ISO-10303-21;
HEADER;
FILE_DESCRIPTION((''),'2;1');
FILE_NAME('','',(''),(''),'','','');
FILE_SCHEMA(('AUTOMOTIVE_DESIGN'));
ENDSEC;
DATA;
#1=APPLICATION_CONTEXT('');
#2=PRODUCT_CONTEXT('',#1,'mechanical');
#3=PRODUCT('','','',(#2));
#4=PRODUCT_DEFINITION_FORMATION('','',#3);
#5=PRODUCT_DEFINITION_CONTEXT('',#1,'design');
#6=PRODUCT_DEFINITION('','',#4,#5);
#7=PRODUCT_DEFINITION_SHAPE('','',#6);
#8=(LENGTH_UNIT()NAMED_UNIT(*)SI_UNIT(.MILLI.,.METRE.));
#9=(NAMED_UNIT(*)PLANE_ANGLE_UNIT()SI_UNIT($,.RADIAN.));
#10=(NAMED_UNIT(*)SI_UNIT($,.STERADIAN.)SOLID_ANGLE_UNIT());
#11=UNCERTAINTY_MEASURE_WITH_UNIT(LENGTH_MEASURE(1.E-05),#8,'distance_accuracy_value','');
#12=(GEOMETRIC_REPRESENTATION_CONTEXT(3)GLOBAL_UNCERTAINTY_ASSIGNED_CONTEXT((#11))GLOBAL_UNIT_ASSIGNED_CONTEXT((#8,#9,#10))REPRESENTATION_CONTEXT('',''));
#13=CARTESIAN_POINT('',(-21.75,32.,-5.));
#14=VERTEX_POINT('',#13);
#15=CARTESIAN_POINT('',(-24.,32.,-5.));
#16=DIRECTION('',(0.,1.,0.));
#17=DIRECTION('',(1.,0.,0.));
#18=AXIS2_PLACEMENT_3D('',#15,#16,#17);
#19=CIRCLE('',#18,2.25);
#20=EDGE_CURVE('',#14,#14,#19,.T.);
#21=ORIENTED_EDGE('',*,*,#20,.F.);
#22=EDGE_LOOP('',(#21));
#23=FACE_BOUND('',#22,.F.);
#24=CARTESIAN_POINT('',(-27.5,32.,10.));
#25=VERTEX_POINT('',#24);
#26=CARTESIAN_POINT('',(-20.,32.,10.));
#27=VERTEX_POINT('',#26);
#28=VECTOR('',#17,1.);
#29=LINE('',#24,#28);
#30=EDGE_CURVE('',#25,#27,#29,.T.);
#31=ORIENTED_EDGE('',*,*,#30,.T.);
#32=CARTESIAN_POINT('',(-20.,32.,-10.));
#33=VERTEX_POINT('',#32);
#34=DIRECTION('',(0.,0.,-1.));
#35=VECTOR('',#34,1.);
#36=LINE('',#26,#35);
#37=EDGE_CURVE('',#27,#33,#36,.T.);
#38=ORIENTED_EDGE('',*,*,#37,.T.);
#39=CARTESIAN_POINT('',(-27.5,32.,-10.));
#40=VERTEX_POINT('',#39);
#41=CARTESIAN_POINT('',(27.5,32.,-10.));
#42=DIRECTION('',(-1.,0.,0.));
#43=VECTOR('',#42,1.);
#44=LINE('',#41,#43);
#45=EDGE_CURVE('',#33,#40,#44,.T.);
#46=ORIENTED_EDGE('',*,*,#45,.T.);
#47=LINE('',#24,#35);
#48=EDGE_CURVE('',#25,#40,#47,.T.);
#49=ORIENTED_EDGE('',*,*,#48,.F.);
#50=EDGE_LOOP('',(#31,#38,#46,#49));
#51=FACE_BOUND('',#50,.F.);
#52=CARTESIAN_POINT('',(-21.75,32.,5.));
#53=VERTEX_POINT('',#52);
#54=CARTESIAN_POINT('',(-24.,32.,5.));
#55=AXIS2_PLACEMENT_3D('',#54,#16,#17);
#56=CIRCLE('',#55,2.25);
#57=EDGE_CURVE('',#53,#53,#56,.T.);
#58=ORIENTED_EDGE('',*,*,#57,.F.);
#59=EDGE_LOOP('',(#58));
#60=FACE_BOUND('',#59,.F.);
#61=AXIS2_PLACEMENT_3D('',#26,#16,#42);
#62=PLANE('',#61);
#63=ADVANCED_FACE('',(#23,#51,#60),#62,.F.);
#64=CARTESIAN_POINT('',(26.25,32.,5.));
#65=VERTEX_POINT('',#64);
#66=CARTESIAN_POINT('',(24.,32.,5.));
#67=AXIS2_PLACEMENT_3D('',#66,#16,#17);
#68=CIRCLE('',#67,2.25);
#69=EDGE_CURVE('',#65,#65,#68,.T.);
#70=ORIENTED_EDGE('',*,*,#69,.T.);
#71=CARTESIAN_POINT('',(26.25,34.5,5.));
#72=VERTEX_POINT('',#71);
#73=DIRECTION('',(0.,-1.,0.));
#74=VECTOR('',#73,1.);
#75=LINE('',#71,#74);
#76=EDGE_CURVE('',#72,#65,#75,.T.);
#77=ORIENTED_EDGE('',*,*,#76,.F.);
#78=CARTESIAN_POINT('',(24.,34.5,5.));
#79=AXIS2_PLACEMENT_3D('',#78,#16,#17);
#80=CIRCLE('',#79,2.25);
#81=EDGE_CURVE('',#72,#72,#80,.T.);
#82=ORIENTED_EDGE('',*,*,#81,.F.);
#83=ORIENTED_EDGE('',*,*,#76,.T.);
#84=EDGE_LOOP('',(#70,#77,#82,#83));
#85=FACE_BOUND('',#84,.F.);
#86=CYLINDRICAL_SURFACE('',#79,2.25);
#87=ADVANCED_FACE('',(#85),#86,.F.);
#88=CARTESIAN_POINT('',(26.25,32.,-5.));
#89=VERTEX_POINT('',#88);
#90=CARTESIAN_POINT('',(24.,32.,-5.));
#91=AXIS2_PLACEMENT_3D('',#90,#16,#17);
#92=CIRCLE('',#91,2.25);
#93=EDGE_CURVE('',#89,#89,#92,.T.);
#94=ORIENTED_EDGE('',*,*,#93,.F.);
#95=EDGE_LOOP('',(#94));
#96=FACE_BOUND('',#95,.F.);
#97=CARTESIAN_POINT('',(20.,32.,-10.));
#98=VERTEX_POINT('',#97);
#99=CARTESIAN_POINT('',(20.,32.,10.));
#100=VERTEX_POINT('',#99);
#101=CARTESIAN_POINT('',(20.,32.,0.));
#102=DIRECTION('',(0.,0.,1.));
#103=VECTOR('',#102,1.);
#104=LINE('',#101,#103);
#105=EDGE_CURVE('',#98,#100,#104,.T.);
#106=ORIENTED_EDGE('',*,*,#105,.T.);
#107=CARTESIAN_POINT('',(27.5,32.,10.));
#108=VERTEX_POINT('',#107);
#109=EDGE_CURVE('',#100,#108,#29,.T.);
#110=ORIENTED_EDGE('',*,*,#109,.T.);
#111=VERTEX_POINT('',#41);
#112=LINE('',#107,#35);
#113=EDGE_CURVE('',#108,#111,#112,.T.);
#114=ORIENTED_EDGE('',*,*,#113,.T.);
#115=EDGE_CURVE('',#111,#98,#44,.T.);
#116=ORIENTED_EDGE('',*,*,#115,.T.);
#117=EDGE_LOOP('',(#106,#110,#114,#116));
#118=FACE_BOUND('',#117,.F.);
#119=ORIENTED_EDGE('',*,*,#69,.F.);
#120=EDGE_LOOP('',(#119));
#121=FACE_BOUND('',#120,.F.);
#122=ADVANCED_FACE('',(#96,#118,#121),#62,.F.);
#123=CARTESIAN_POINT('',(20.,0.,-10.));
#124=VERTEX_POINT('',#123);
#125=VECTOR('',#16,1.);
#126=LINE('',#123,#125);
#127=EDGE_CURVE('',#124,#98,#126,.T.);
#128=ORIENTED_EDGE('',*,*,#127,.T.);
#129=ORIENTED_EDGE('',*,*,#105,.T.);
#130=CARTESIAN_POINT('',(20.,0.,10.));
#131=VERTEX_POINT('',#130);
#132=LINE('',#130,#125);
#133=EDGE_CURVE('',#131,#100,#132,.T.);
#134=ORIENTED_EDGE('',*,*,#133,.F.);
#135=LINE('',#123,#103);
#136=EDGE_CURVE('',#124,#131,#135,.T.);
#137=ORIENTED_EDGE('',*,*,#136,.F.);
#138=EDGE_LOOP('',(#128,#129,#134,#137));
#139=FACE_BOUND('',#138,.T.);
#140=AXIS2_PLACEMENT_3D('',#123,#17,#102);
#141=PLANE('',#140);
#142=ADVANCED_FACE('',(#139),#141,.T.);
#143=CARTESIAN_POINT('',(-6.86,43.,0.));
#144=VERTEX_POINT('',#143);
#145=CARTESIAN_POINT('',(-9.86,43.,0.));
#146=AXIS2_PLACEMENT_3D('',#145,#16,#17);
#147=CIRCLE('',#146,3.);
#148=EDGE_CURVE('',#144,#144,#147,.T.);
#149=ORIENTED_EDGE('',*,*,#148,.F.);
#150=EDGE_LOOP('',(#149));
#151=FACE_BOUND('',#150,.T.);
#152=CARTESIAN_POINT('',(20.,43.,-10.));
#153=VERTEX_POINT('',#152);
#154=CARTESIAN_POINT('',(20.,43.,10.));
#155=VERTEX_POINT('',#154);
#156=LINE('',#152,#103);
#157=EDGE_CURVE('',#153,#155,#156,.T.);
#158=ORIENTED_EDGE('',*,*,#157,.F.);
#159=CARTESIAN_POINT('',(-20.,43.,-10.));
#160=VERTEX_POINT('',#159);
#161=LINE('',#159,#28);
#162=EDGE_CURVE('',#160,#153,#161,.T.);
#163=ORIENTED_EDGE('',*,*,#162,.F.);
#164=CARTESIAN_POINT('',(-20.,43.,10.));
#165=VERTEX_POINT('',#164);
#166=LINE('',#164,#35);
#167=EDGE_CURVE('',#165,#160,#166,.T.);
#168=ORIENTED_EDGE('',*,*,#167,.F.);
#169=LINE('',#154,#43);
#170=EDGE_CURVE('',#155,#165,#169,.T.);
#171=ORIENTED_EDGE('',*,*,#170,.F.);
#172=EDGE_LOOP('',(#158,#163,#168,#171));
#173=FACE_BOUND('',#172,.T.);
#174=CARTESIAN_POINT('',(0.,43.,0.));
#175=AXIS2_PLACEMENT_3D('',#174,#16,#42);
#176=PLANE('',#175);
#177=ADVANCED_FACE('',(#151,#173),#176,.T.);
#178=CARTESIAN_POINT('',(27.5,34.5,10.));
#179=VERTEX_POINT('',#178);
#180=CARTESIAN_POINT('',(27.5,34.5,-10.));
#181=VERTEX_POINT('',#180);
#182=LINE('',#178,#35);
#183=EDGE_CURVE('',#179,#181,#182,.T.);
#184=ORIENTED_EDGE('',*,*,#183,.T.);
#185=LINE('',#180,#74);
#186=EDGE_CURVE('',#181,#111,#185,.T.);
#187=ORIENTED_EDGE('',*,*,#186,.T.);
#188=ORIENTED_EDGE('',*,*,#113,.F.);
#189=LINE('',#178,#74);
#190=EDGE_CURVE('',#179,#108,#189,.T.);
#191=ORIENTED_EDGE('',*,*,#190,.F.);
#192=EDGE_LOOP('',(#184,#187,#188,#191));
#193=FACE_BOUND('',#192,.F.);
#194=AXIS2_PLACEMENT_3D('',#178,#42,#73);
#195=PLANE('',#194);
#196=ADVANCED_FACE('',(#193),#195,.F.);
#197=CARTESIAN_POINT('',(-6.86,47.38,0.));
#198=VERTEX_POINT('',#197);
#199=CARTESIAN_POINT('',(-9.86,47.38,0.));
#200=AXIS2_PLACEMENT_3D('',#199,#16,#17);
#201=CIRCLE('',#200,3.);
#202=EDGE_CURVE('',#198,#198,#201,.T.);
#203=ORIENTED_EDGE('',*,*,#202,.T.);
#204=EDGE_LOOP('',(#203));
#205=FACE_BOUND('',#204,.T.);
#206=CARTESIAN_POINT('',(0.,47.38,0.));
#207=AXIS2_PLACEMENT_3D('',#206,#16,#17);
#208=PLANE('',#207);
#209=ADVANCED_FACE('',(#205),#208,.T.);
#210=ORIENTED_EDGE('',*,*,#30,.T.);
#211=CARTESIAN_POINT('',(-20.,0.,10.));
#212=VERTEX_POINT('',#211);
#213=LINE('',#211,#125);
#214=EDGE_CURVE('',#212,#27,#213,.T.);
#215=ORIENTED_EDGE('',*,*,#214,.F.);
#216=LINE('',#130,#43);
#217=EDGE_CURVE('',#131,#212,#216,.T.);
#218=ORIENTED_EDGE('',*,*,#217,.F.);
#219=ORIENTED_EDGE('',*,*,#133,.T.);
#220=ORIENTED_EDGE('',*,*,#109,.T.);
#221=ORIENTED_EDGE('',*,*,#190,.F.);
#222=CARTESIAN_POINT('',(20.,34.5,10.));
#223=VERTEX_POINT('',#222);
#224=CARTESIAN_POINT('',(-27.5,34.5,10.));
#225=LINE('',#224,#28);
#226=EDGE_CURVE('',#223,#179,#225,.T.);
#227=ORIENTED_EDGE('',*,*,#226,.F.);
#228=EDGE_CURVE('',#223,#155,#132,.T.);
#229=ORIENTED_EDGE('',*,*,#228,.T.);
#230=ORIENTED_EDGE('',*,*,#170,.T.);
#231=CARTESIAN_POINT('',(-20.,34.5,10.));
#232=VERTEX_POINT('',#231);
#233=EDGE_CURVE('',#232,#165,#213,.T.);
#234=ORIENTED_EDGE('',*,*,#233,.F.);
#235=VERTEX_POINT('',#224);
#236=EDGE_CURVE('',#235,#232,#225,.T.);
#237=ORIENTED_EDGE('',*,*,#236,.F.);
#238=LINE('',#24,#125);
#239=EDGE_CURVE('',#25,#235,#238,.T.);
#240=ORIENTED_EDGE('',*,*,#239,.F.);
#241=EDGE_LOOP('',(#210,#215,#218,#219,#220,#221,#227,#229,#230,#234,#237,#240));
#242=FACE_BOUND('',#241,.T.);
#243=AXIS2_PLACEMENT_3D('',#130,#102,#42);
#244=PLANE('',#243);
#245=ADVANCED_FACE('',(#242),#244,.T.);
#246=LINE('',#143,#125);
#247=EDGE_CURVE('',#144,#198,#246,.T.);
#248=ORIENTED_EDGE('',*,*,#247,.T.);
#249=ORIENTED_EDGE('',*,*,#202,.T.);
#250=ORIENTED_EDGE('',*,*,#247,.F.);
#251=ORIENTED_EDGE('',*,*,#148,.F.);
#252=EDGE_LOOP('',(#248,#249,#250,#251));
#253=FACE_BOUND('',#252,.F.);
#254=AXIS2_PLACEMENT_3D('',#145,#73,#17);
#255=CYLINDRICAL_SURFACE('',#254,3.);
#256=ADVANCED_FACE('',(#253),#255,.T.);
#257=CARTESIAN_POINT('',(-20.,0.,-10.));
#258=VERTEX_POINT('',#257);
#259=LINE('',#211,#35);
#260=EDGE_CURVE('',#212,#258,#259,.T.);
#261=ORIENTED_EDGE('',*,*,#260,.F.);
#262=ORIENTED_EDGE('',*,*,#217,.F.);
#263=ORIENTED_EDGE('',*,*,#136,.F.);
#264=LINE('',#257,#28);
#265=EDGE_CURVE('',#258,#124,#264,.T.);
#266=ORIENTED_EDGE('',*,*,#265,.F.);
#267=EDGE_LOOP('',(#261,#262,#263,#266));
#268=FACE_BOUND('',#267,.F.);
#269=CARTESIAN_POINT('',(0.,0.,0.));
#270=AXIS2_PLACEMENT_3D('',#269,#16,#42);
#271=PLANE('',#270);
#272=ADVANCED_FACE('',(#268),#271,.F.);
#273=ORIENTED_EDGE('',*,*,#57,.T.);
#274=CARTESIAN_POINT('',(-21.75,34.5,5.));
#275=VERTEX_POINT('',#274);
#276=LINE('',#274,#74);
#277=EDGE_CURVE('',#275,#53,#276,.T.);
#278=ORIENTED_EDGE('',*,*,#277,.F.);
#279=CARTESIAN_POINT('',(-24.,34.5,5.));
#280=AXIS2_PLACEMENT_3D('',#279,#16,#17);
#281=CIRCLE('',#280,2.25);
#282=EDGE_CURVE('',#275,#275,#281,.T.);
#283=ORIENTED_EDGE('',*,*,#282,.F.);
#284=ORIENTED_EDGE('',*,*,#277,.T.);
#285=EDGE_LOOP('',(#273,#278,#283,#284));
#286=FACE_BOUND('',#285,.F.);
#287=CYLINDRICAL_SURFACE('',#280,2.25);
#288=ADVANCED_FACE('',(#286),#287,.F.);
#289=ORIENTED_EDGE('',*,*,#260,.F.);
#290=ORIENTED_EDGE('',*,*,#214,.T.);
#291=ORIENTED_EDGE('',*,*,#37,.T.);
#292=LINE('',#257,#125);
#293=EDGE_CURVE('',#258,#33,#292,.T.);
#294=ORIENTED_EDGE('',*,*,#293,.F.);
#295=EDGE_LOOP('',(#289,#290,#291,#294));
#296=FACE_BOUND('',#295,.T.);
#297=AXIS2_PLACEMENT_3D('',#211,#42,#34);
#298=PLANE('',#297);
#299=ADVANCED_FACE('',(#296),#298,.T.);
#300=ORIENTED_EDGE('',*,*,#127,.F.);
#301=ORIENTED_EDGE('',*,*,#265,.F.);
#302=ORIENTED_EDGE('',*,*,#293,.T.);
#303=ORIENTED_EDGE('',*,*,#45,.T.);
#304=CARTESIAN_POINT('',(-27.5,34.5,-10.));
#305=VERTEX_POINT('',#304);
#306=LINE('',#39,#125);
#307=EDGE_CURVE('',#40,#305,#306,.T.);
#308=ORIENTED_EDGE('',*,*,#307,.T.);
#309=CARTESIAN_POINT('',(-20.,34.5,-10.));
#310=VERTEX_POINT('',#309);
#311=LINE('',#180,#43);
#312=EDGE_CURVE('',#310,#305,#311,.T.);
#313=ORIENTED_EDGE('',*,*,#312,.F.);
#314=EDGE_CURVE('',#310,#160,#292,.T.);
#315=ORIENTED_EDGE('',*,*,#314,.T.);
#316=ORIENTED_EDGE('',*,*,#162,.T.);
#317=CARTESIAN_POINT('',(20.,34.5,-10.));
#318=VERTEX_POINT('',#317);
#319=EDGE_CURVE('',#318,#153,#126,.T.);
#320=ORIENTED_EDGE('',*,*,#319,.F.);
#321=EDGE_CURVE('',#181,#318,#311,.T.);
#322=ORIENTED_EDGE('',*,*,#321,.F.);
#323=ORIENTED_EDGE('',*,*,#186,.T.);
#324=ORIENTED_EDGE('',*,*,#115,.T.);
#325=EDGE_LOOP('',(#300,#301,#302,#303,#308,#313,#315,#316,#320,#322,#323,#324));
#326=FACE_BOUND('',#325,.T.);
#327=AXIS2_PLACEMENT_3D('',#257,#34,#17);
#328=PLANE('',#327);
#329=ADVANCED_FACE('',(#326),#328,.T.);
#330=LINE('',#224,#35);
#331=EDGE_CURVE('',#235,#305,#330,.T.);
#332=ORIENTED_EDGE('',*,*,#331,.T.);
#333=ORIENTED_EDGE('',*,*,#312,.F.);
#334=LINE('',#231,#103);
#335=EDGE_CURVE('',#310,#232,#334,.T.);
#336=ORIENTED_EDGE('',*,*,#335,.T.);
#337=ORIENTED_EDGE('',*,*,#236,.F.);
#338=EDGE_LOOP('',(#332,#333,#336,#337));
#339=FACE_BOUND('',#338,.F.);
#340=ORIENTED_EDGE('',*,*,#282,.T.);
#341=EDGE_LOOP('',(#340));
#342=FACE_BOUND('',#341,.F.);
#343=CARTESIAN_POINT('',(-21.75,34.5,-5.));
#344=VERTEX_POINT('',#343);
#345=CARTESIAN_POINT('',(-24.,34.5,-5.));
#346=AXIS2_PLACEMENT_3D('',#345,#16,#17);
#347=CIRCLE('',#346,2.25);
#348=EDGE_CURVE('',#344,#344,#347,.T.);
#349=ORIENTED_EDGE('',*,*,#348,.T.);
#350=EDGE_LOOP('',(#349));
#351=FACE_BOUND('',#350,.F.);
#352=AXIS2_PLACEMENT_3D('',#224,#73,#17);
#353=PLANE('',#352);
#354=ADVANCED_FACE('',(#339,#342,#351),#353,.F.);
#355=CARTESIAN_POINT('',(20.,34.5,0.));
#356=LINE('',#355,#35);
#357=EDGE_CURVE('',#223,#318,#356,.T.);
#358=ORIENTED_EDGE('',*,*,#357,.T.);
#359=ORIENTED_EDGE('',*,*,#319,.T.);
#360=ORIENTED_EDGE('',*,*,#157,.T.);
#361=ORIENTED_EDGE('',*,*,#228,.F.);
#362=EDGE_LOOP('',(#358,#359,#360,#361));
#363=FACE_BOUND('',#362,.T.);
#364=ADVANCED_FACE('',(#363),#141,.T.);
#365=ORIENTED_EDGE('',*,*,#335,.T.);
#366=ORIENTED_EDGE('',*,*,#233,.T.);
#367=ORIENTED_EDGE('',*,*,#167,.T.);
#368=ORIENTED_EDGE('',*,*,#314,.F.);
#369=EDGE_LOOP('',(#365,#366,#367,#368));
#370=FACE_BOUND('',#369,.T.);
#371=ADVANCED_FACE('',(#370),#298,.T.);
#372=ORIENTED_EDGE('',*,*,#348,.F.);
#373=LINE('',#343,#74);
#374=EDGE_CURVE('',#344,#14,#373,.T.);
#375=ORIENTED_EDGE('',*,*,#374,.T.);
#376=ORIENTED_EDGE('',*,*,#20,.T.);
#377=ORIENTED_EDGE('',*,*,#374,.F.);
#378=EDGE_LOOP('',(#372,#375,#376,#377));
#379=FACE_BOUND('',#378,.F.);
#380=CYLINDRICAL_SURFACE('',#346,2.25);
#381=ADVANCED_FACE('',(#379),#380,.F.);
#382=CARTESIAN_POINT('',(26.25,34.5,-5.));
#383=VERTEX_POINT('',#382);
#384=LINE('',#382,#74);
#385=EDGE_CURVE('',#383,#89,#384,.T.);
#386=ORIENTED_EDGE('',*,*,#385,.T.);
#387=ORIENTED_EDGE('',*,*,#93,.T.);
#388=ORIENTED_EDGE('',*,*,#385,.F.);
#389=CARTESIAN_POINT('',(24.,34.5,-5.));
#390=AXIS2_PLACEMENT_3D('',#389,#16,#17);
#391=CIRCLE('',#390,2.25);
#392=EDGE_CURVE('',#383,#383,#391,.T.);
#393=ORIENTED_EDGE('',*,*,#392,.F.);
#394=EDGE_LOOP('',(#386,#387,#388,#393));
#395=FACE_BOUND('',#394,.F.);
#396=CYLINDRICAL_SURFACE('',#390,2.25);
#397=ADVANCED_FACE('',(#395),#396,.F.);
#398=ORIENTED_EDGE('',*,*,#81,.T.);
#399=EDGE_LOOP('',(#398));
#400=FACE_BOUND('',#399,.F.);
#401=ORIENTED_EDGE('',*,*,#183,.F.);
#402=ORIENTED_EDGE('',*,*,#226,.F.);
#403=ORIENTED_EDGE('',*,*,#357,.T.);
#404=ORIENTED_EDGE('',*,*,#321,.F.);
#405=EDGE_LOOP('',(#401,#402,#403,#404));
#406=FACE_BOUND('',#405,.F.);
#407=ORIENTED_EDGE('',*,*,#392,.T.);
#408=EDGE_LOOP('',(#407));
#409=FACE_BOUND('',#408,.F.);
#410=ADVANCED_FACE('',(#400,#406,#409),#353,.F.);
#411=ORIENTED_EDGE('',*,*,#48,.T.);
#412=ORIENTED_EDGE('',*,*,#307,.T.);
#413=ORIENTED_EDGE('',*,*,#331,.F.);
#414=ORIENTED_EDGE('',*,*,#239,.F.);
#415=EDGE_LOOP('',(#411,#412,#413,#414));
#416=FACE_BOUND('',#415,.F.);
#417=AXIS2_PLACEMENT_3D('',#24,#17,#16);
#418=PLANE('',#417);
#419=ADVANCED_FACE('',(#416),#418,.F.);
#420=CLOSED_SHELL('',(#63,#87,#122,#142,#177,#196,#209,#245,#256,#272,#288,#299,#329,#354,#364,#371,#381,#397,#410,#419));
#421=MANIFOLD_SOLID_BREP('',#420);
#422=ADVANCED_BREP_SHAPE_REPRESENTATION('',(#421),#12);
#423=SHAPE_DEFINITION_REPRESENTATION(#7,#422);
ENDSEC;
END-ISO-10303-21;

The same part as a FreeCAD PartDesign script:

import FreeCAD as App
import Part
import Sketcher

V = App.Vector
Q = App.Units.Quantity

doc = App.newDocument("Part")
body = doc.addObject("PartDesign::Body", "Body")

# Sketch on XZ plane
sketch1 = doc.addObject("Sketcher::SketchObject", "Sketch")
body.addObject(sketch1)
sketch1.AttachmentSupport = (doc.XZ_Plane, [""])
sketch1.MapMode = "FlatFace"
sketch1.addGeometry(Part.LineSegment(V(-20, 10, 0), V(20, 10, 0)), False)
sketch1.addGeometry(Part.LineSegment(V(20, 10, 0), V(20, -10, 0)), False)
sketch1.addGeometry(Part.LineSegment(V(20, -10, 0), V(-20, -10, 0)), False)
sketch1.addGeometry(Part.LineSegment(V(-20, -10, 0), V(-20, 10, 0)), False)
sketch1.addConstraint(Sketcher.Constraint("Coincident", 0, 2, 1, 1))
sketch1.addConstraint(Sketcher.Constraint("Coincident", 1, 2, 2, 1))
sketch1.addConstraint(Sketcher.Constraint("Coincident", 2, 2, 3, 1))
sketch1.addConstraint(Sketcher.Constraint("Coincident", 3, 2, 0, 1))
sketch1.addConstraint(Sketcher.Constraint("Horizontal", 0))
sketch1.addConstraint(Sketcher.Constraint("Vertical", 1))
sketch1.addConstraint(Sketcher.Constraint("Horizontal", 2))
sketch1.addConstraint(Sketcher.Constraint("Vertical", 3))
sketch1.addConstraint(Sketcher.Constraint("Symmetric", 0, 2, 2, 2, -1, 1))
sketch1.addConstraint(Sketcher.Constraint("DistanceX", 0, 1, 0, 2, Q("40 mm")))
sketch1.addConstraint(Sketcher.Constraint("DistanceY", 1, 2, 1, 1, Q("20 mm")))
pad1 = doc.addObject("PartDesign::Pad", "Pad")
body.addObject(pad1)
pad1.Profile = sketch1
pad1.Length = 43
pad1.Reversed = True

# Sketch on XY plane
sketch2 = doc.addObject("Sketcher::SketchObject", "Sketch001")
body.addObject(sketch2)
sketch2.AttachmentSupport = (doc.XY_Plane, [""])
sketch2.MapMode = "FlatFace"
sketch2.AttachmentOffset = App.Placement(V(0, 0, 10), App.Rotation())
sketch2.addGeometry(Part.LineSegment(V(-27.5, 34.5, 0), V(-27.5, 32, 0)), False)
sketch2.addGeometry(Part.LineSegment(V(-27.5, 32, 0), V(27.5, 32, 0)), False)
sketch2.addGeometry(Part.LineSegment(V(27.5, 32, 0), V(27.5, 34.5, 0)), False)
sketch2.addGeometry(Part.LineSegment(V(27.5, 34.5, 0), V(-27.5, 34.5, 0)), False)
sketch2.addConstraint(Sketcher.Constraint("Coincident", 0, 2, 1, 1))
sketch2.addConstraint(Sketcher.Constraint("Coincident", 1, 2, 2, 1))
sketch2.addConstraint(Sketcher.Constraint("Coincident", 2, 2, 3, 1))
sketch2.addConstraint(Sketcher.Constraint("Coincident", 3, 2, 0, 1))
sketch2.addConstraint(Sketcher.Constraint("Vertical", 0))
sketch2.addConstraint(Sketcher.Constraint("Horizontal", 1))
sketch2.addConstraint(Sketcher.Constraint("Vertical", 2))
sketch2.addConstraint(Sketcher.Constraint("Horizontal", 3))
sketch2.addConstraint(Sketcher.Constraint("DistanceX", 1, 1, 1, 2, Q("55 mm")))
sketch2.addConstraint(Sketcher.Constraint("DistanceY", 0, 2, 0, 1, Q("2.5 mm")))
sketch2.addConstraint(Sketcher.Constraint("DistanceY", -1, 1, 0, 2, Q("32 mm")))
sketch2.addConstraint(Sketcher.Constraint("DistanceX", 0, 2, -1, 1, Q("27.5 mm")))
pad2 = doc.addObject("PartDesign::Pad", "Pad001")
body.addObject(pad2)
pad2.Profile = sketch2
pad2.Length = 20
pad2.Reversed = True

# Sketch on XZ plane
sketch3 = doc.addObject("Sketcher::SketchObject", "Sketch002")
body.addObject(sketch3)
sketch3.AttachmentSupport = (doc.XZ_Plane, [""])
sketch3.MapMode = "FlatFace"
sketch3.AttachmentOffset = App.Placement(V(0, 0, -34.5), App.Rotation())
sketch3.addGeometry(Part.Circle(V(-24, 5, 0), V(0, 0, 1), 2.25), False)
sketch3.addGeometry(Part.Circle(V(-24, -5, 0), V(0, 0, 1), 2.25), False)
sketch3.addGeometry(Part.Circle(V(24, 5, 0), V(0, 0, 1), 2.25), False)
sketch3.addGeometry(Part.Circle(V(24, -5, 0), V(0, 0, 1), 2.25), False)
sketch3.addConstraint(Sketcher.Constraint("Equal", 0, 1))
sketch3.addConstraint(Sketcher.Constraint("Equal", 1, 2))
sketch3.addConstraint(Sketcher.Constraint("Equal", 2, 3))
sketch3.addConstraint(Sketcher.Constraint("Symmetric", 1, 3, 2, 3, -1, 1))
sketch3.addConstraint(Sketcher.Constraint("Symmetric", 0, 3, 3, 3, -1, 1))
sketch3.addConstraint(Sketcher.Constraint("Symmetric", 0, 3, 2, 3, -2))
sketch3.addConstraint(Sketcher.Constraint("Diameter", 0, Q("4.5 mm")))
sketch3.addConstraint(Sketcher.Constraint("DistanceX", 0, 3, -1, 1, Q("24 mm")))
sketch3.addConstraint(Sketcher.Constraint("DistanceY", -1, 1, 0, 3, Q("5 mm")))
pocket1 = doc.addObject("PartDesign::Pocket", "Pocket")
body.addObject(pocket1)
pocket1.Profile = sketch3
pocket1.Type = "ThroughAll"
pocket1.Reversed = True

# Sketch on XZ plane
sketch4 = doc.addObject("Sketcher::SketchObject", "Sketch003")
body.addObject(sketch4)
sketch4.AttachmentSupport = (doc.XZ_Plane, [""])
sketch4.MapMode = "FlatFace"
sketch4.AttachmentOffset = App.Placement(V(0, 0, -43), App.Rotation())
sketch4.addGeometry(Part.Circle(V(-9.86, 0, 0), V(0, 0, 1), 3), False)
sketch4.addConstraint(Sketcher.Constraint("PointOnObject", 0, 3, -1))
sketch4.addConstraint(Sketcher.Constraint("Diameter", 0, Q("6 mm")))
sketch4.addConstraint(Sketcher.Constraint("DistanceX", 0, 3, -1, 1, Q("9.86 mm")))
pad3 = doc.addObject("PartDesign::Pad", "Pad002")
body.addObject(pad3)
pad3.Profile = sketch4
pad3.Length = 4.38
pad3.Reversed = True

doc.recompute()
